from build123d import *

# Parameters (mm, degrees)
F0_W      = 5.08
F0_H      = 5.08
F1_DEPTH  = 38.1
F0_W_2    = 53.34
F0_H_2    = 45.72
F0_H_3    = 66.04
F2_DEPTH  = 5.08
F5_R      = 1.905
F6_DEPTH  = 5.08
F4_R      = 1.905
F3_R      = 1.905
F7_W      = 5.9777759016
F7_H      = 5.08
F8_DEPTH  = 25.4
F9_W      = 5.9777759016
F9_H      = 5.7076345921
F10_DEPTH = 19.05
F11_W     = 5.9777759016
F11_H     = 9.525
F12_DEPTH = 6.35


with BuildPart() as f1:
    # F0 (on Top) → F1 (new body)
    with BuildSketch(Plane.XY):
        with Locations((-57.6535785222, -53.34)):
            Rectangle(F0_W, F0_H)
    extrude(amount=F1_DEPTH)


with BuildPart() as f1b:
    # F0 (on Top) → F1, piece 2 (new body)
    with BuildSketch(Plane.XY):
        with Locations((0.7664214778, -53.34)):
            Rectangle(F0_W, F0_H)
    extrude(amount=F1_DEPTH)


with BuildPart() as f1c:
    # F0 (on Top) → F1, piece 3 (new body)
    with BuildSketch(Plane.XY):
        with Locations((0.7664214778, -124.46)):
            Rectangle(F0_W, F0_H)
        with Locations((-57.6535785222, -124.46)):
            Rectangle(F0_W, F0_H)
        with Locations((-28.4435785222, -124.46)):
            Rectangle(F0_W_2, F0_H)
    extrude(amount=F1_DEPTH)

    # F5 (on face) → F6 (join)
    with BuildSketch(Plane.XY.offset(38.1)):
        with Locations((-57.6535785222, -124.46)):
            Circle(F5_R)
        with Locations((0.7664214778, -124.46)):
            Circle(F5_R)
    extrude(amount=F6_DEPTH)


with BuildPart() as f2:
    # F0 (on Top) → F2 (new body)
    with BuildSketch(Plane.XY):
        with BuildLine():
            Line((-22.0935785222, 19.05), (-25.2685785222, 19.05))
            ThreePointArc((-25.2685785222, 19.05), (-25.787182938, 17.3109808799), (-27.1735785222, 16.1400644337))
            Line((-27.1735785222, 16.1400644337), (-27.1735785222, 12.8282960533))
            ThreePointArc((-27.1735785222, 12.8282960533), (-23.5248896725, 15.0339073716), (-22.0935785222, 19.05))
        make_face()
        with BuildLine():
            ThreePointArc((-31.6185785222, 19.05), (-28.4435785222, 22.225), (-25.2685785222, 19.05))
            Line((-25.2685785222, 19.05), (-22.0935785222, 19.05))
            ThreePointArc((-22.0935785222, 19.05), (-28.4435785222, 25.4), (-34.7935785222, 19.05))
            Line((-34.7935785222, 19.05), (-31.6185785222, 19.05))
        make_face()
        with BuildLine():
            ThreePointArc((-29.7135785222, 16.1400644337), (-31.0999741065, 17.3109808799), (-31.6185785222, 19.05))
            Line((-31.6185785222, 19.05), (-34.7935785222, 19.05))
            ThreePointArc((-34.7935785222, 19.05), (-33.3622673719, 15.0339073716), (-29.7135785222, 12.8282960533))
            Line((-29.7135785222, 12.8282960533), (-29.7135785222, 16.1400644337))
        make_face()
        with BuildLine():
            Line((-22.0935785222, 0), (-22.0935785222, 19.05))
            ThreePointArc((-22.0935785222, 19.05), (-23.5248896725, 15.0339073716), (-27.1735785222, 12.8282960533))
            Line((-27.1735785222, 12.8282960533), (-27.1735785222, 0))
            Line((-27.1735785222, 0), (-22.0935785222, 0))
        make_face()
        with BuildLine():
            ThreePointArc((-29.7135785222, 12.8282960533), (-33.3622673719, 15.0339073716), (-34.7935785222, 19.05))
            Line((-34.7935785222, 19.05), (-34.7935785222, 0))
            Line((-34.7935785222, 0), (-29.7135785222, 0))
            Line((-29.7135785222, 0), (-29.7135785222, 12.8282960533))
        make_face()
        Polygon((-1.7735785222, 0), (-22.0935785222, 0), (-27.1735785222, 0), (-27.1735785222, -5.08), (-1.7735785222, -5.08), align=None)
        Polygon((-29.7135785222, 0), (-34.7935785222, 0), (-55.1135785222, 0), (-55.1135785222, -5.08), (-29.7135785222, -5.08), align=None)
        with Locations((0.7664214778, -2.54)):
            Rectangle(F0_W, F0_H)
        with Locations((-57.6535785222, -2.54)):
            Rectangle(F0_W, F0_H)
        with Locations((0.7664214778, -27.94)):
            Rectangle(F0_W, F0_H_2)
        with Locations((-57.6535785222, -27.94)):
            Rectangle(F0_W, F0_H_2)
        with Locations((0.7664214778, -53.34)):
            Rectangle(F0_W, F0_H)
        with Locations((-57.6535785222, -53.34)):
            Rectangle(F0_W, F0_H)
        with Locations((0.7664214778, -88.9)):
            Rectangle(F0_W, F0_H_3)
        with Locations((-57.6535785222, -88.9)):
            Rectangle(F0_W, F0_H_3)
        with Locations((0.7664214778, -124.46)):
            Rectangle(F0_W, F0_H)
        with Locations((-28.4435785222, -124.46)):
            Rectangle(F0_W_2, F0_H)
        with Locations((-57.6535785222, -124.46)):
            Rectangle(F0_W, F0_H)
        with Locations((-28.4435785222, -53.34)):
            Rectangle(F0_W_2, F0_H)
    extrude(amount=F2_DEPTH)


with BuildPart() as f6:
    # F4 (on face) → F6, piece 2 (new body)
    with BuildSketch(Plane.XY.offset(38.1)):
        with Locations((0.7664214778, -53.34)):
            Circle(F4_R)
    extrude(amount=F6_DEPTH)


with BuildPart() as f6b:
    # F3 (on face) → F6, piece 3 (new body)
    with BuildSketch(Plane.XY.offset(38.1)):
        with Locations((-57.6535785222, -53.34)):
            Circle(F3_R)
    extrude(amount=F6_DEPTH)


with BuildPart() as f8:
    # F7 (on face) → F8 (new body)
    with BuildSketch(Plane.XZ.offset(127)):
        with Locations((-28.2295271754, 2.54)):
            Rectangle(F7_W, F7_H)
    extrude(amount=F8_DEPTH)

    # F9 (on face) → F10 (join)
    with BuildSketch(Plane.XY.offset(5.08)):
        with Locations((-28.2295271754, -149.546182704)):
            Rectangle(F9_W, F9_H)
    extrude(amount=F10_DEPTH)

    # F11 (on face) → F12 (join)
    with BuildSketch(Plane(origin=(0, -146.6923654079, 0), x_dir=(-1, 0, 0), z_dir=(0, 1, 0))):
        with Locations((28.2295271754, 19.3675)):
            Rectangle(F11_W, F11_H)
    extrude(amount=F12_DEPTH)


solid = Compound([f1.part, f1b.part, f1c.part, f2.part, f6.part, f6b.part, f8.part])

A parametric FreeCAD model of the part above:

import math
import FreeCAD as App
import Part
import Sketcher
from FreeCAD import Vector
Q = App.Units.Quantity

doc = App.newDocument("Part")
body = doc.addObject("PartDesign::Body", "Body")

sketch1 = body.newObject("Sketcher::SketchObject", "Sketch")
sketch1.AttachmentSupport = (doc.getObject("XY_Plane"), [""])
sketch1.MapMode = "FlatFace"
sketch1.addGeometry(Part.LineSegment(Vector(-60, -51, 0), Vector(-60, -56, 0)), False)
sketch1.addGeometry(Part.LineSegment(Vector(-60, -56, 0), Vector(-55, -56, 0)), False)
sketch1.addGeometry(Part.LineSegment(Vector(-55, -56, 0), Vector(-55, -51, 0)), False)
sketch1.addGeometry(Part.LineSegment(Vector(-55, -51, 0), Vector(-60, -51, 0)), False)
sketch1.addConstraint(Sketcher.Constraint("Coincident", 0, 2, 1, 1))
sketch1.addConstraint(Sketcher.Constraint("Coincident", 1, 2, 2, 1))
sketch1.addConstraint(Sketcher.Constraint("Coincident", 2, 2, 3, 1))
sketch1.addConstraint(Sketcher.Constraint("Coincident", 3, 2, 0, 1))
sketch1.addConstraint(Sketcher.Constraint("Vertical", 0))
sketch1.addConstraint(Sketcher.Constraint("Horizontal", 1))
sketch1.addConstraint(Sketcher.Constraint("Vertical", 2))
sketch1.addConstraint(Sketcher.Constraint("Horizontal", 3))
sketch1.addConstraint(Sketcher.Constraint("Equal", 3, 0))
sketch1.addConstraint(Sketcher.Constraint("DistanceX", 1, 1, 1, 2, Q("0.2 in")))
sketch1.addConstraint(Sketcher.Constraint("DistanceY", 2, 2, -1, 1, Q("2 in")))
sketch1.addConstraint(Sketcher.Constraint("DistanceX", 0, 2, -1, 1, 60.193579))
pad1 = body.newObject("PartDesign::Pad", "Pad")
pad1.Profile = sketch1
pad1.Length = Q("1.5 in")
body2 = doc.addObject("PartDesign::Body", "Body001")

sketch2 = body2.newObject("Sketcher::SketchObject", "Sketch001")
sketch2.AttachmentSupport = (doc.getObject("XY_Plane001"), [""])
sketch2.MapMode = "FlatFace"
sketch2.addGeometry(Part.LineSegment(Vector(-2, -51, 0), Vector(-2, -56, 0)), False)
sketch2.addGeometry(Part.LineSegment(Vector(-2, -56, 0), Vector(3, -56, 0)), False)
sketch2.addGeometry(Part.LineSegment(Vector(3, -56, 0), Vector(3, -51, 0)), False)
sketch2.addGeometry(Part.LineSegment(Vector(3, -51, 0), Vector(-2, -51, 0)), False)
sketch2.addConstraint(Sketcher.Constraint("Coincident", 0, 2, 1, 1))
sketch2.addConstraint(Sketcher.Constraint("Coincident", 1, 2, 2, 1))
sketch2.addConstraint(Sketcher.Constraint("Coincident", 2, 2, 3, 1))
sketch2.addConstraint(Sketcher.Constraint("Coincident", 3, 2, 0, 1))
sketch2.addConstraint(Sketcher.Constraint("Vertical", 0))
sketch2.addConstraint(Sketcher.Constraint("Horizontal", 1))
sketch2.addConstraint(Sketcher.Constraint("Vertical", 2))
sketch2.addConstraint(Sketcher.Constraint("Horizontal", 3))
sketch2.addConstraint(Sketcher.Constraint("Equal", 3, 0))
sketch2.addConstraint(Sketcher.Constraint("DistanceX", 1, 1, 1, 2, Q("0.2 in")))
sketch2.addConstraint(Sketcher.Constraint("DistanceY", 2, 2, -1, 1, Q("2 in")))
sketch2.addConstraint(Sketcher.Constraint("DistanceX", 0, 2, -1, 1, 1.773579))
pad2 = body2.newObject("PartDesign::Pad", "Pad001")
pad2.Profile = sketch2
pad2.Length = Q("1.5 in")
body3 = doc.addObject("PartDesign::Body", "Body002")

sketch3 = body3.newObject("Sketcher::SketchObject", "Sketch002")
sketch3.AttachmentSupport = (doc.getObject("XY_Plane002"), [""])
sketch3.MapMode = "FlatFace"
sketch3.addGeometry(Part.LineSegment(Vector(3, -127, 0), Vector(3, -122, 0)), False)
sketch3.addGeometry(Part.LineSegment(Vector(3, -122, 0), Vector(-60, -122, 0)), False)
sketch3.addGeometry(Part.LineSegment(Vector(-60, -122, 0), Vector(-60, -127, 0)), False)
sketch3.addGeometry(Part.LineSegment(Vector(-60, -127, 0), Vector(3, -127, 0)), False)
sketch3.addConstraint(Sketcher.Constraint("Coincident", 0, 2, 1, 1))
sketch3.addConstraint(Sketcher.Constraint("Coincident", 1, 2, 2, 1))
sketch3.addConstraint(Sketcher.Constraint("Coincident", 2, 2, 3, 1))
sketch3.addConstraint(Sketcher.Constraint("Coincident", 3, 2, 0, 1))
sketch3.addConstraint(Sketcher.Constraint("Vertical", 0))
sketch3.addConstraint(Sketcher.Constraint("Horizontal", 1))
sketch3.addConstraint(Sketcher.Constraint("Vertical", 2))
sketch3.addConstraint(Sketcher.Constraint("Horizontal", 3))
sketch3.addConstraint(Sketcher.Constraint("DistanceX", 1, 2, 1, 1, Q("2.5 in")))
sketch3.addConstraint(Sketcher.Constraint("DistanceY", 0, 1, 0, 2, Q("0.2 in")))
sketch3.addConstraint(Sketcher.Constraint("DistanceY", 2, 2, -1, 1, Q("5 in")))
sketch3.addConstraint(Sketcher.Constraint("DistanceX", -1, 1, 0, 2, 3.306421))
pad3 = body3.newObject("PartDesign::Pad", "Pad002")
pad3.Profile = sketch3
pad3.Length = Q("1.5 in")

sketch4 = body3.newObject("Sketcher::SketchObject", "Sketch003")
sketch4.AttachmentSupport = (doc.getObject("XY_Plane002"), [""])
sketch4.MapMode = "FlatFace"
sketch4.AttachmentOffset = App.Placement(Vector(0, 0, 1.5 * 25.4), App.Rotation())
sketch4.addGeometry(Part.Circle(Vector(-57.7, -124.5, 0), Vector(0, 0, 1), 1.9), False)
sketch4.addGeometry(Part.Circle(Vector(0.8, -124.5, 0), Vector(0, 0, 1), 1.9), False)
sketch4.addConstraint(Sketcher.Constraint("Equal", 0, 1))
sketch4.addConstraint(Sketcher.Constraint("Horizontal", 0, 3, 1, 3))
sketch4.addConstraint(Sketcher.Constraint("Diameter", 0, Q("0.15 in")))
sketch4.addConstraint(Sketcher.Constraint("DistanceY", 0, 3, -1, 1, Q("4.9 in")))
sketch4.addConstraint(Sketcher.Constraint("DistanceX", 0, 3, 1, 3, Q("2.3 in")))
sketch4.addConstraint(Sketcher.Constraint("DistanceX", 0, 3, -1, 1, 57.653579))
pad4 = body3.newObject("PartDesign::Pad", "Pad003")
pad4.Profile = sketch4
pad4.Length = Q("0.2 in")
body4 = doc.addObject("PartDesign::Body", "Body003")

sketch5 = body4.newObject("Sketcher::SketchObject", "Sketch004")
sketch5.AttachmentSupport = (doc.getObject("XY_Plane003"), [""])
sketch5.MapMode = "FlatFace"
sketch5.addGeometry(Part.LineSegment(Vector(-60.2, 0, 0), Vector(-60.2, -127, 0)), False)
sketch5.addGeometry(Part.LineSegment(Vector(-60.2, -127, 0), Vector(3.3, -127, 0)), False)
sketch5.addGeometry(Part.LineSegment(Vector(3.3, -127, 0), Vector(3.3, 0, 0)), False)
sketch5.addGeometry(Part.LineSegment(Vector(3.3, 0, 0), Vector(-22.1, 0, 0)), False)
sketch5.addGeometry(Part.LineSegment(Vector(-22.1, 0, 0), Vector(-22.1, 19.1, 0)), False)
sketch5.addGeometry(Part.ArcOfCircle(Part.Circle(Vector(-28.4, 19.1, 0), Vector(0, 0, 1), 6.3), math.radians(0), math.radians(180)), False)
sketch5.addGeometry(Part.LineSegment(Vector(-34.8, 19.1, 0), Vector(-34.8, 0, 0)), False)
sketch5.addGeometry(Part.LineSegment(Vector(-34.8, 0, 0), Vector(-60.2, 0, 0)), False)
sketch5.addGeometry(Part.LineSegment(Vector(-1.8, -121.9, 0), Vector(-55.1, -121.9, 0)), False)
sketch5.addGeometry(Part.LineSegment(Vector(-55.1, -121.9, 0), Vector(-55.1, -55.9, 0)), False)
sketch5.addGeometry(Part.LineSegment(Vector(-55.1, -55.9, 0), Vector(-1.8, -55.9, 0)), False)
sketch5.addGeometry(Part.LineSegment(Vector(-1.8, -55.9, 0), Vector(-1.8, -121.9, 0)), False)
sketch5.addGeometry(Part.LineSegment(Vector(-55.1, -50.8, 0), Vector(-55.1, -5.1, 0)), False)
sketch5.addGeometry(Part.LineSegment(Vector(-55.1, -5.1, 0), Vector(-29.7, -5.1, 0)), False)
sketch5.addGeometry(Part.LineSegment(Vector(-29.7, -5.1, 0), Vector(-29.7, 16.1, 0)), False)
sketch5.addGeometry(Part.ArcOfCircle(Part.Circle(Vector(-28.4, 19.1, 0), Vector(0, 0, 1), 3.2), math.radians(180), math.radians(246)), False)
sketch5.addGeometry(Part.ArcOfCircle(Part.Circle(Vector(-28.4, 19.1, 0), Vector(0, 0, 1), 3.2), math.radians(0), math.radians(180)), False)
sketch5.addGeometry(Part.ArcOfCircle(Part.Circle(Vector(-28.4, 19.1, 0), Vector(0, 0, 1), 3.2), math.radians(-66), math.radians(0)), False)
sketch5.addGeometry(Part.LineSegment(Vector(-27.2, 16.1, 0), Vector(-27.2, -5.1, 0)), False)
sketch5.addGeometry(Part.LineSegment(Vector(-27.2, -5.1, 0), Vector(-1.8, -5.1, 0)), False)
sketch5.addGeometry(Part.LineSegment(Vector(-1.8, -5.1, 0), Vector(-1.8, -50.8, 0)), False)
sketch5.addGeometry(Part.LineSegment(Vector(-1.8, -50.8, 0), Vector(-55.1, -50.8, 0)), False)
sketch5.addConstraint(Sketcher.Constraint("Coincident", 0, 2, 1, 1))
sketch5.addConstraint(Sketcher.Constraint("Coincident", 1, 2, 2, 1))
sketch5.addConstraint(Sketcher.Constraint("Coincident", 2, 2, 3, 1))
sketch5.addConstraint(Sketcher.Constraint("Coincident", 3, 2, 4, 1))
sketch5.addConstraint(Sketcher.Constraint("Tangent", 4, 2, 5, 1))
sketch5.addConstraint(Sketcher.Constraint("Tangent", 5, 2, 6, 1))
sketch5.addConstraint(Sketcher.Constraint("Coincident", 6, 2, 7, 1))
sketch5.addConstraint(Sketcher.Constraint("Coincident", 7, 2, 0, 1))
sketch5.addConstraint(Sketcher.Constraint("Coincident", 8, 2, 9, 1))
sketch5.addConstraint(Sketcher.Constraint("Coincident", 9, 2, 10, 1))
sketch5.addConstraint(Sketcher.Constraint("Coincident", 10, 2, 11, 1))
sketch5.addConstraint(Sketcher.Constraint("Coincident", 11, 2, 8, 1))
sketch5.addConstraint(Sketcher.Constraint("Coincident", 12, 2, 13, 1))
sketch5.addConstraint(Sketcher.Constraint("Coincident", 13, 2, 14, 1))
sketch5.addConstraint(Sketcher.Constraint("Coincident", 14, 2, 15, 2))
sketch5.addConstraint(Sketcher.Constraint("Tangent", 15, 1, 16, 2))
sketch5.addConstraint(Sketcher.Constraint("Tangent", 16, 1, 17, 2))
sketch5.addConstraint(Sketcher.Constraint("Coincident", 17, 1, 18, 1))
sketch5.addConstraint(Sketcher.Constraint("Coincident", 18, 2, 19, 1))
sketch5.addConstraint(Sketcher.Constraint("Coincident", 19, 2, 20, 1))
sketch5.addConstraint(Sketcher.Constraint("Coincident", 20, 2, 21, 1))
sketch5.addConstraint(Sketcher.Constraint("Coincident", 21, 2, 12, 1))
sketch5.addConstraint(Sketcher.Constraint("Vertical", 0))
sketch5.addConstraint(Sketcher.Constraint("Horizontal", 1))
sketch5.addConstraint(Sketcher.Constraint("Vertical", 2))
sketch5.addConstraint(Sketcher.Constraint("Horizontal", 3))
sketch5.addConstraint(Sketcher.Constraint("Vertical", 4))
sketch5.addConstraint(Sketcher.Constraint("Vertical", 6))
sketch5.addConstraint(Sketcher.Constraint("Horizontal", 7))
sketch5.addConstraint(Sketcher.Constraint("Horizontal", 8))
sketch5.addConstraint(Sketcher.Constraint("Vertical", 9))
sketch5.addConstraint(Sketcher.Constraint("Horizontal", 10))
sketch5.addConstraint(Sketcher.Constraint("Vertical", 11))
sketch5.addConstraint(Sketcher.Constraint("Vertical", 12))
sketch5.addConstraint(Sketcher.Constraint("Horizontal", 13))
sketch5.addConstraint(Sketcher.Constraint("Vertical", 14))
sketch5.addConstraint(Sketcher.Constraint("Vertical", 18))
sketch5.addConstraint(Sketcher.Constraint("Horizontal", 19))
sketch5.addConstraint(Sketcher.Constraint("Vertical", 20))
sketch5.addConstraint(Sketcher.Constraint("Horizontal", 21))
sketch5.addConstraint(Sketcher.Constraint("Coincident", 15, 3, 5, 3))
sketch5.addConstraint(Sketcher.Constraint("Equal", 15, 16))
sketch5.addConstraint(Sketcher.Constraint("Equal", 16, 17))
sketch5.addConstraint(Sketcher.Constraint("PointOnObject", 2, 2, -1))
sketch5.addConstraint(Sketcher.Constraint("PointOnObject", 6, 2, -1))
sketch5.addConstraint(Sketcher.Constraint("Horizontal", 5, 2, 15, 1))
sketch5.addConstraint(Sketcher.Constraint("Horizontal", 15, 1, 16, 1))
sketch5.addConstraint(Sketcher.Constraint("Horizontal", 14, 2, 17, 1))
sketch5.addConstraint(Sketcher.Constraint("Horizontal", 13, 2, 18, 2))
sketch5.addConstraint(Sketcher.Constraint("Vertical", 9, 2, 12, 2))
sketch5.addConstraint(Sketcher.Constraint("Vertical", 11, 2, 19, 2))
sketch5.addConstraint(Sketcher.Constraint("Equal", 3, 7))
sketch5.addConstraint(Sketcher.Constraint("Equal", 7, 13))
sketch5.addConstraint(Sketcher.Constraint("Equal", 13, 19))
sketch5.addConstraint(Sketcher.Constraint("DistanceX", 3, 2, 3, 1, Q("1 in")))
sketch5.addConstraint(Sketcher.Constraint("DistanceY", 0, 2, 0, 1, Q("5 in")))
sketch5.addConstraint(Sketcher.Constraint("Radius", 5, Q("0.25 in")))
sketch5.addConstraint(Sketcher.Constraint("DistanceX", 8, 2, 8, 1, Q("2.1 in")))
sketch5.addConstraint(Sketcher.Constraint("DistanceY", 9, 1, 9, 2, Q("2.6 in")))
sketch5.addConstraint(Sketcher.Constraint("DistanceY", 12, 1, 12, 2, Q("1.8 in")))
sketch5.addConstraint(Sketcher.Constraint("DistanceY", 20, 2, -1, 1, Q("2 in")))
sketch5.addConstraint(Sketcher.Constraint("Radius", 15, Q("0.125 in")))
sketch5.addConstraint(Sketcher.Constraint("DistanceY", 4, 1, 4, 2, Q("0.75 in")))
sketch5.addConstraint(Sketcher.Constraint("DistanceY", 8, 2, -1, 1, Q("4.8 in")))
sketch5.addConstraint(Sketcher.Constraint("DistanceX", 5, 3, -1, 1, 28.443579))
pad5 = body4.newObject("PartDesign::Pad", "Pad004")
pad5.Profile = sketch5
pad5.Length = Q("0.2 in")
body5 = doc.addObject("PartDesign::Body", "Body004")

sketch6 = body5.newObject("Sketcher::SketchObject", "Sketch005")
sketch6.AttachmentSupport = (doc.getObject("XY_Plane004"), [""])
sketch6.MapMode = "FlatFace"
sketch6.AttachmentOffset = App.Placement(Vector(0, 0, 1.5 * 25.4), App.Rotation())
sketch6.addGeometry(Part.Circle(Vector(0.8, -53.3, 0), Vector(0, 0, 1), 1.9), False)
sketch6.addConstraint(Sketcher.Constraint("Diameter", 0, Q("0.15 in")))
sketch6.addConstraint(Sketcher.Constraint("DistanceY", 0, 3, -1, 1, Q("2.1 in")))
sketch6.addConstraint(Sketcher.Constraint("DistanceX", -1, 1, 0, 3, 0.766421))
pad6 = body5.newObject("PartDesign::Pad", "Pad005")
pad6.Profile = sketch6
pad6.Length = Q("0.2 in")
body6 = doc.addObject("PartDesign::Body", "Body005")

sketch7 = body6.newObject("Sketcher::SketchObject", "Sketch006")
sketch7.AttachmentSupport = (doc.getObject("XY_Plane005"), [""])
sketch7.MapMode = "FlatFace"
sketch7.AttachmentOffset = App.Placement(Vector(0, 0, 1.5 * 25.4), App.Rotation())
sketch7.addGeometry(Part.Circle(Vector(-57.7, -53.3, 0), Vector(0, 0, 1), 1.9), False)
sketch7.addConstraint(Sketcher.Constraint("Diameter", 0, Q("0.15 in")))
sketch7.addConstraint(Sketcher.Constraint("DistanceY", 0, 3, -1, 1, Q("2.1 in")))
sketch7.addConstraint(Sketcher.Constraint("DistanceX", 0, 3, -1, 1, 57.653579))
pad7 = body6.newObject("PartDesign::Pad", "Pad006")
pad7.Profile = sketch7
pad7.Length = Q("0.2 in")
body7 = doc.addObject("PartDesign::Body", "Body006")

sketch8 = body7.newObject("Sketcher::SketchObject", "Sketch007")
sketch8.AttachmentSupport = (doc.getObject("XZ_Plane006"), [""])
sketch8.MapMode = "FlatFace"
sketch8.AttachmentOffset = App.Placement(Vector(0, 0, 5 * 25.4), App.Rotation())
sketch8.addGeometry(Part.LineSegment(Vector(-31, 5, 0), Vector(-31, 0, 0)), False)
sketch8.addGeometry(Part.LineSegment(Vector(-31, 0, 0), Vector(-25, 0, 0)), False)
sketch8.addGeometry(Part.LineSegment(Vector(-25, 0, 0), Vector(-25, 5, 0)), False)
sketch8.addGeometry(Part.LineSegment(Vector(-25, 5, 0), Vector(-31, 5, 0)), False)
sketch8.addConstraint(Sketcher.Constraint("Coincident", 0, 2, 1, 1))
sketch8.addConstraint(Sketcher.Constraint("Coincident", 1, 2, 2, 1))
sketch8.addConstraint(Sketcher.Constraint("Coincident", 2, 2, 3, 1))
sketch8.addConstraint(Sketcher.Constraint("Coincident", 3, 2, 0, 1))
sketch8.addConstraint(Sketcher.Constraint("Vertical", 0))
sketch8.addConstraint(Sketcher.Constraint("Horizontal", 1))
sketch8.addConstraint(Sketcher.Constraint("Vertical", 2))
sketch8.addConstraint(Sketcher.Constraint("Horizontal", 3))
sketch8.addConstraint(Sketcher.Constraint("PointOnObject", 0, 2, -1))
sketch8.addConstraint(Sketcher.Constraint("DistanceY", 0, 2, 0, 1, Q("0.2 in")))
sketch8.addConstraint(Sketcher.Constraint("DistanceX", 1, 1, 1, 2, 5.977776))
sketch8.addConstraint(Sketcher.Constraint("DistanceX", 1, 2, -1, 1, 25.240639))
pad8 = body7.newObject("PartDesign::Pad", "Pad007")
pad8.Profile = sketch8
pad8.Length = Q("1 in")

sketch9 = body7.newObject("Sketcher::SketchObject", "Sketch008")
sketch9.AttachmentSupport = (doc.getObject("XY_Plane006"), [""])
sketch9.MapMode = "FlatFace"
sketch9.AttachmentOffset = App.Placement(Vector(0, 0, 0.2 * 25.4), App.Rotation())
sketch9.addGeometry(Part.LineSegment(Vector(-31, -147, 0), Vector(-31, -152, 0)), False)
sketch9.addGeometry(Part.LineSegment(Vector(-31, -152, 0), Vector(-25, -152, 0)), False)
sketch9.addGeometry(Part.LineSegment(Vector(-25, -152, 0), Vector(-25, -147, 0)), False)
sketch9.addGeometry(Part.LineSegment(Vector(-25, -147, 0), Vector(-31, -147, 0)), False)
sketch9.addConstraint(Sketcher.Constraint("Coincident", 0, 2, 1, 1))
sketch9.addConstraint(Sketcher.Constraint("Coincident", 1, 2, 2, 1))
sketch9.addConstraint(Sketcher.Constraint("Coincident", 2, 2, 3, 1))
sketch9.addConstraint(Sketcher.Constraint("Coincident", 3, 2, 0, 1))
sketch9.addConstraint(Sketcher.Constraint("Vertical", 0))
sketch9.addConstraint(Sketcher.Constraint("Horizontal", 1))
sketch9.addConstraint(Sketcher.Constraint("Vertical", 2))
sketch9.addConstraint(Sketcher.Constraint("Horizontal", 3))
sketch9.addConstraint(Sketcher.Constraint("DistanceY", 0, 2, -1, 1, Q("6 in")))
sketch9.addConstraint(Sketcher.Constraint("DistanceX", 1, 1, 1, 2, 5.977776))
sketch9.addConstraint(Sketcher.Constraint("DistanceY", 0, 2, 0, 1, 5.707635))
sketch9.addConstraint(Sketcher.Constraint("DistanceX", 1, 2, -1, 1, 25.240639))
pad9 = body7.newObject("PartDesign::Pad", "Pad008")
pad9.Profile = sketch9
pad9.Length = Q("0.75 in")

sketch10 = body7.newObject("Sketcher::SketchObject", "Sketch009")
sketch10.AttachmentSupport = (doc.getObject("XZ_Plane006"), [""])
sketch10.MapMode = "FlatFace"
sketch10.AttachmentOffset = App.Placement(Vector(0, 0, 146.692365), App.Rotation())
sketch10.addGeometry(Part.LineSegment(Vector(-25, 24, 0), Vector(-25, 15, 0)), False)
sketch10.addGeometry(Part.LineSegment(Vector(-25, 15, 0), Vector(-31, 15, 0)), False)
sketch10.addGeometry(Part.LineSegment(Vector(-31, 15, 0), Vector(-31, 24, 0)), False)
sketch10.addGeometry(Part.LineSegment(Vector(-31, 24, 0), Vector(-25, 24, 0)), False)
sketch10.addConstraint(Sketcher.Constraint("Coincident", 0, 2, 1, 1))
sketch10.addConstraint(Sketcher.Constraint("Coincident", 1, 2, 2, 1))
sketch10.addConstraint(Sketcher.Constraint("Coincident", 2, 2, 3, 1))
sketch10.addConstraint(Sketcher.Constraint("Coincident", 3, 2, 0, 1))
sketch10.addConstraint(Sketcher.Constraint("Vertical", 0))
sketch10.addConstraint(Sketcher.Constraint("Horizontal", 1))
sketch10.addConstraint(Sketcher.Constraint("Vertical", 2))
sketch10.addConstraint(Sketcher.Constraint("Horizontal", 3))
sketch10.addConstraint(Sketcher.Constraint("DistanceY", 0, 2, 0, 1, Q("0.375 in")))
sketch10.addConstraint(Sketcher.Constraint("DistanceY", -1, 1, 2, 2, Q("0.95 in")))
sketch10.addConstraint(Sketcher.Constraint("DistanceX", 1, 2, 1, 1, 5.977776))
sketch10.addConstraint(Sketcher.Constraint("DistanceX", 0, 2, -1, 1, 25.240639))
pad10 = body7.newObject("PartDesign::Pad", "Pad009")
pad10.Profile = sketch10
pad10.Length = Q("0.25 in")
pad10.Reversed = True

doc.recompute()
